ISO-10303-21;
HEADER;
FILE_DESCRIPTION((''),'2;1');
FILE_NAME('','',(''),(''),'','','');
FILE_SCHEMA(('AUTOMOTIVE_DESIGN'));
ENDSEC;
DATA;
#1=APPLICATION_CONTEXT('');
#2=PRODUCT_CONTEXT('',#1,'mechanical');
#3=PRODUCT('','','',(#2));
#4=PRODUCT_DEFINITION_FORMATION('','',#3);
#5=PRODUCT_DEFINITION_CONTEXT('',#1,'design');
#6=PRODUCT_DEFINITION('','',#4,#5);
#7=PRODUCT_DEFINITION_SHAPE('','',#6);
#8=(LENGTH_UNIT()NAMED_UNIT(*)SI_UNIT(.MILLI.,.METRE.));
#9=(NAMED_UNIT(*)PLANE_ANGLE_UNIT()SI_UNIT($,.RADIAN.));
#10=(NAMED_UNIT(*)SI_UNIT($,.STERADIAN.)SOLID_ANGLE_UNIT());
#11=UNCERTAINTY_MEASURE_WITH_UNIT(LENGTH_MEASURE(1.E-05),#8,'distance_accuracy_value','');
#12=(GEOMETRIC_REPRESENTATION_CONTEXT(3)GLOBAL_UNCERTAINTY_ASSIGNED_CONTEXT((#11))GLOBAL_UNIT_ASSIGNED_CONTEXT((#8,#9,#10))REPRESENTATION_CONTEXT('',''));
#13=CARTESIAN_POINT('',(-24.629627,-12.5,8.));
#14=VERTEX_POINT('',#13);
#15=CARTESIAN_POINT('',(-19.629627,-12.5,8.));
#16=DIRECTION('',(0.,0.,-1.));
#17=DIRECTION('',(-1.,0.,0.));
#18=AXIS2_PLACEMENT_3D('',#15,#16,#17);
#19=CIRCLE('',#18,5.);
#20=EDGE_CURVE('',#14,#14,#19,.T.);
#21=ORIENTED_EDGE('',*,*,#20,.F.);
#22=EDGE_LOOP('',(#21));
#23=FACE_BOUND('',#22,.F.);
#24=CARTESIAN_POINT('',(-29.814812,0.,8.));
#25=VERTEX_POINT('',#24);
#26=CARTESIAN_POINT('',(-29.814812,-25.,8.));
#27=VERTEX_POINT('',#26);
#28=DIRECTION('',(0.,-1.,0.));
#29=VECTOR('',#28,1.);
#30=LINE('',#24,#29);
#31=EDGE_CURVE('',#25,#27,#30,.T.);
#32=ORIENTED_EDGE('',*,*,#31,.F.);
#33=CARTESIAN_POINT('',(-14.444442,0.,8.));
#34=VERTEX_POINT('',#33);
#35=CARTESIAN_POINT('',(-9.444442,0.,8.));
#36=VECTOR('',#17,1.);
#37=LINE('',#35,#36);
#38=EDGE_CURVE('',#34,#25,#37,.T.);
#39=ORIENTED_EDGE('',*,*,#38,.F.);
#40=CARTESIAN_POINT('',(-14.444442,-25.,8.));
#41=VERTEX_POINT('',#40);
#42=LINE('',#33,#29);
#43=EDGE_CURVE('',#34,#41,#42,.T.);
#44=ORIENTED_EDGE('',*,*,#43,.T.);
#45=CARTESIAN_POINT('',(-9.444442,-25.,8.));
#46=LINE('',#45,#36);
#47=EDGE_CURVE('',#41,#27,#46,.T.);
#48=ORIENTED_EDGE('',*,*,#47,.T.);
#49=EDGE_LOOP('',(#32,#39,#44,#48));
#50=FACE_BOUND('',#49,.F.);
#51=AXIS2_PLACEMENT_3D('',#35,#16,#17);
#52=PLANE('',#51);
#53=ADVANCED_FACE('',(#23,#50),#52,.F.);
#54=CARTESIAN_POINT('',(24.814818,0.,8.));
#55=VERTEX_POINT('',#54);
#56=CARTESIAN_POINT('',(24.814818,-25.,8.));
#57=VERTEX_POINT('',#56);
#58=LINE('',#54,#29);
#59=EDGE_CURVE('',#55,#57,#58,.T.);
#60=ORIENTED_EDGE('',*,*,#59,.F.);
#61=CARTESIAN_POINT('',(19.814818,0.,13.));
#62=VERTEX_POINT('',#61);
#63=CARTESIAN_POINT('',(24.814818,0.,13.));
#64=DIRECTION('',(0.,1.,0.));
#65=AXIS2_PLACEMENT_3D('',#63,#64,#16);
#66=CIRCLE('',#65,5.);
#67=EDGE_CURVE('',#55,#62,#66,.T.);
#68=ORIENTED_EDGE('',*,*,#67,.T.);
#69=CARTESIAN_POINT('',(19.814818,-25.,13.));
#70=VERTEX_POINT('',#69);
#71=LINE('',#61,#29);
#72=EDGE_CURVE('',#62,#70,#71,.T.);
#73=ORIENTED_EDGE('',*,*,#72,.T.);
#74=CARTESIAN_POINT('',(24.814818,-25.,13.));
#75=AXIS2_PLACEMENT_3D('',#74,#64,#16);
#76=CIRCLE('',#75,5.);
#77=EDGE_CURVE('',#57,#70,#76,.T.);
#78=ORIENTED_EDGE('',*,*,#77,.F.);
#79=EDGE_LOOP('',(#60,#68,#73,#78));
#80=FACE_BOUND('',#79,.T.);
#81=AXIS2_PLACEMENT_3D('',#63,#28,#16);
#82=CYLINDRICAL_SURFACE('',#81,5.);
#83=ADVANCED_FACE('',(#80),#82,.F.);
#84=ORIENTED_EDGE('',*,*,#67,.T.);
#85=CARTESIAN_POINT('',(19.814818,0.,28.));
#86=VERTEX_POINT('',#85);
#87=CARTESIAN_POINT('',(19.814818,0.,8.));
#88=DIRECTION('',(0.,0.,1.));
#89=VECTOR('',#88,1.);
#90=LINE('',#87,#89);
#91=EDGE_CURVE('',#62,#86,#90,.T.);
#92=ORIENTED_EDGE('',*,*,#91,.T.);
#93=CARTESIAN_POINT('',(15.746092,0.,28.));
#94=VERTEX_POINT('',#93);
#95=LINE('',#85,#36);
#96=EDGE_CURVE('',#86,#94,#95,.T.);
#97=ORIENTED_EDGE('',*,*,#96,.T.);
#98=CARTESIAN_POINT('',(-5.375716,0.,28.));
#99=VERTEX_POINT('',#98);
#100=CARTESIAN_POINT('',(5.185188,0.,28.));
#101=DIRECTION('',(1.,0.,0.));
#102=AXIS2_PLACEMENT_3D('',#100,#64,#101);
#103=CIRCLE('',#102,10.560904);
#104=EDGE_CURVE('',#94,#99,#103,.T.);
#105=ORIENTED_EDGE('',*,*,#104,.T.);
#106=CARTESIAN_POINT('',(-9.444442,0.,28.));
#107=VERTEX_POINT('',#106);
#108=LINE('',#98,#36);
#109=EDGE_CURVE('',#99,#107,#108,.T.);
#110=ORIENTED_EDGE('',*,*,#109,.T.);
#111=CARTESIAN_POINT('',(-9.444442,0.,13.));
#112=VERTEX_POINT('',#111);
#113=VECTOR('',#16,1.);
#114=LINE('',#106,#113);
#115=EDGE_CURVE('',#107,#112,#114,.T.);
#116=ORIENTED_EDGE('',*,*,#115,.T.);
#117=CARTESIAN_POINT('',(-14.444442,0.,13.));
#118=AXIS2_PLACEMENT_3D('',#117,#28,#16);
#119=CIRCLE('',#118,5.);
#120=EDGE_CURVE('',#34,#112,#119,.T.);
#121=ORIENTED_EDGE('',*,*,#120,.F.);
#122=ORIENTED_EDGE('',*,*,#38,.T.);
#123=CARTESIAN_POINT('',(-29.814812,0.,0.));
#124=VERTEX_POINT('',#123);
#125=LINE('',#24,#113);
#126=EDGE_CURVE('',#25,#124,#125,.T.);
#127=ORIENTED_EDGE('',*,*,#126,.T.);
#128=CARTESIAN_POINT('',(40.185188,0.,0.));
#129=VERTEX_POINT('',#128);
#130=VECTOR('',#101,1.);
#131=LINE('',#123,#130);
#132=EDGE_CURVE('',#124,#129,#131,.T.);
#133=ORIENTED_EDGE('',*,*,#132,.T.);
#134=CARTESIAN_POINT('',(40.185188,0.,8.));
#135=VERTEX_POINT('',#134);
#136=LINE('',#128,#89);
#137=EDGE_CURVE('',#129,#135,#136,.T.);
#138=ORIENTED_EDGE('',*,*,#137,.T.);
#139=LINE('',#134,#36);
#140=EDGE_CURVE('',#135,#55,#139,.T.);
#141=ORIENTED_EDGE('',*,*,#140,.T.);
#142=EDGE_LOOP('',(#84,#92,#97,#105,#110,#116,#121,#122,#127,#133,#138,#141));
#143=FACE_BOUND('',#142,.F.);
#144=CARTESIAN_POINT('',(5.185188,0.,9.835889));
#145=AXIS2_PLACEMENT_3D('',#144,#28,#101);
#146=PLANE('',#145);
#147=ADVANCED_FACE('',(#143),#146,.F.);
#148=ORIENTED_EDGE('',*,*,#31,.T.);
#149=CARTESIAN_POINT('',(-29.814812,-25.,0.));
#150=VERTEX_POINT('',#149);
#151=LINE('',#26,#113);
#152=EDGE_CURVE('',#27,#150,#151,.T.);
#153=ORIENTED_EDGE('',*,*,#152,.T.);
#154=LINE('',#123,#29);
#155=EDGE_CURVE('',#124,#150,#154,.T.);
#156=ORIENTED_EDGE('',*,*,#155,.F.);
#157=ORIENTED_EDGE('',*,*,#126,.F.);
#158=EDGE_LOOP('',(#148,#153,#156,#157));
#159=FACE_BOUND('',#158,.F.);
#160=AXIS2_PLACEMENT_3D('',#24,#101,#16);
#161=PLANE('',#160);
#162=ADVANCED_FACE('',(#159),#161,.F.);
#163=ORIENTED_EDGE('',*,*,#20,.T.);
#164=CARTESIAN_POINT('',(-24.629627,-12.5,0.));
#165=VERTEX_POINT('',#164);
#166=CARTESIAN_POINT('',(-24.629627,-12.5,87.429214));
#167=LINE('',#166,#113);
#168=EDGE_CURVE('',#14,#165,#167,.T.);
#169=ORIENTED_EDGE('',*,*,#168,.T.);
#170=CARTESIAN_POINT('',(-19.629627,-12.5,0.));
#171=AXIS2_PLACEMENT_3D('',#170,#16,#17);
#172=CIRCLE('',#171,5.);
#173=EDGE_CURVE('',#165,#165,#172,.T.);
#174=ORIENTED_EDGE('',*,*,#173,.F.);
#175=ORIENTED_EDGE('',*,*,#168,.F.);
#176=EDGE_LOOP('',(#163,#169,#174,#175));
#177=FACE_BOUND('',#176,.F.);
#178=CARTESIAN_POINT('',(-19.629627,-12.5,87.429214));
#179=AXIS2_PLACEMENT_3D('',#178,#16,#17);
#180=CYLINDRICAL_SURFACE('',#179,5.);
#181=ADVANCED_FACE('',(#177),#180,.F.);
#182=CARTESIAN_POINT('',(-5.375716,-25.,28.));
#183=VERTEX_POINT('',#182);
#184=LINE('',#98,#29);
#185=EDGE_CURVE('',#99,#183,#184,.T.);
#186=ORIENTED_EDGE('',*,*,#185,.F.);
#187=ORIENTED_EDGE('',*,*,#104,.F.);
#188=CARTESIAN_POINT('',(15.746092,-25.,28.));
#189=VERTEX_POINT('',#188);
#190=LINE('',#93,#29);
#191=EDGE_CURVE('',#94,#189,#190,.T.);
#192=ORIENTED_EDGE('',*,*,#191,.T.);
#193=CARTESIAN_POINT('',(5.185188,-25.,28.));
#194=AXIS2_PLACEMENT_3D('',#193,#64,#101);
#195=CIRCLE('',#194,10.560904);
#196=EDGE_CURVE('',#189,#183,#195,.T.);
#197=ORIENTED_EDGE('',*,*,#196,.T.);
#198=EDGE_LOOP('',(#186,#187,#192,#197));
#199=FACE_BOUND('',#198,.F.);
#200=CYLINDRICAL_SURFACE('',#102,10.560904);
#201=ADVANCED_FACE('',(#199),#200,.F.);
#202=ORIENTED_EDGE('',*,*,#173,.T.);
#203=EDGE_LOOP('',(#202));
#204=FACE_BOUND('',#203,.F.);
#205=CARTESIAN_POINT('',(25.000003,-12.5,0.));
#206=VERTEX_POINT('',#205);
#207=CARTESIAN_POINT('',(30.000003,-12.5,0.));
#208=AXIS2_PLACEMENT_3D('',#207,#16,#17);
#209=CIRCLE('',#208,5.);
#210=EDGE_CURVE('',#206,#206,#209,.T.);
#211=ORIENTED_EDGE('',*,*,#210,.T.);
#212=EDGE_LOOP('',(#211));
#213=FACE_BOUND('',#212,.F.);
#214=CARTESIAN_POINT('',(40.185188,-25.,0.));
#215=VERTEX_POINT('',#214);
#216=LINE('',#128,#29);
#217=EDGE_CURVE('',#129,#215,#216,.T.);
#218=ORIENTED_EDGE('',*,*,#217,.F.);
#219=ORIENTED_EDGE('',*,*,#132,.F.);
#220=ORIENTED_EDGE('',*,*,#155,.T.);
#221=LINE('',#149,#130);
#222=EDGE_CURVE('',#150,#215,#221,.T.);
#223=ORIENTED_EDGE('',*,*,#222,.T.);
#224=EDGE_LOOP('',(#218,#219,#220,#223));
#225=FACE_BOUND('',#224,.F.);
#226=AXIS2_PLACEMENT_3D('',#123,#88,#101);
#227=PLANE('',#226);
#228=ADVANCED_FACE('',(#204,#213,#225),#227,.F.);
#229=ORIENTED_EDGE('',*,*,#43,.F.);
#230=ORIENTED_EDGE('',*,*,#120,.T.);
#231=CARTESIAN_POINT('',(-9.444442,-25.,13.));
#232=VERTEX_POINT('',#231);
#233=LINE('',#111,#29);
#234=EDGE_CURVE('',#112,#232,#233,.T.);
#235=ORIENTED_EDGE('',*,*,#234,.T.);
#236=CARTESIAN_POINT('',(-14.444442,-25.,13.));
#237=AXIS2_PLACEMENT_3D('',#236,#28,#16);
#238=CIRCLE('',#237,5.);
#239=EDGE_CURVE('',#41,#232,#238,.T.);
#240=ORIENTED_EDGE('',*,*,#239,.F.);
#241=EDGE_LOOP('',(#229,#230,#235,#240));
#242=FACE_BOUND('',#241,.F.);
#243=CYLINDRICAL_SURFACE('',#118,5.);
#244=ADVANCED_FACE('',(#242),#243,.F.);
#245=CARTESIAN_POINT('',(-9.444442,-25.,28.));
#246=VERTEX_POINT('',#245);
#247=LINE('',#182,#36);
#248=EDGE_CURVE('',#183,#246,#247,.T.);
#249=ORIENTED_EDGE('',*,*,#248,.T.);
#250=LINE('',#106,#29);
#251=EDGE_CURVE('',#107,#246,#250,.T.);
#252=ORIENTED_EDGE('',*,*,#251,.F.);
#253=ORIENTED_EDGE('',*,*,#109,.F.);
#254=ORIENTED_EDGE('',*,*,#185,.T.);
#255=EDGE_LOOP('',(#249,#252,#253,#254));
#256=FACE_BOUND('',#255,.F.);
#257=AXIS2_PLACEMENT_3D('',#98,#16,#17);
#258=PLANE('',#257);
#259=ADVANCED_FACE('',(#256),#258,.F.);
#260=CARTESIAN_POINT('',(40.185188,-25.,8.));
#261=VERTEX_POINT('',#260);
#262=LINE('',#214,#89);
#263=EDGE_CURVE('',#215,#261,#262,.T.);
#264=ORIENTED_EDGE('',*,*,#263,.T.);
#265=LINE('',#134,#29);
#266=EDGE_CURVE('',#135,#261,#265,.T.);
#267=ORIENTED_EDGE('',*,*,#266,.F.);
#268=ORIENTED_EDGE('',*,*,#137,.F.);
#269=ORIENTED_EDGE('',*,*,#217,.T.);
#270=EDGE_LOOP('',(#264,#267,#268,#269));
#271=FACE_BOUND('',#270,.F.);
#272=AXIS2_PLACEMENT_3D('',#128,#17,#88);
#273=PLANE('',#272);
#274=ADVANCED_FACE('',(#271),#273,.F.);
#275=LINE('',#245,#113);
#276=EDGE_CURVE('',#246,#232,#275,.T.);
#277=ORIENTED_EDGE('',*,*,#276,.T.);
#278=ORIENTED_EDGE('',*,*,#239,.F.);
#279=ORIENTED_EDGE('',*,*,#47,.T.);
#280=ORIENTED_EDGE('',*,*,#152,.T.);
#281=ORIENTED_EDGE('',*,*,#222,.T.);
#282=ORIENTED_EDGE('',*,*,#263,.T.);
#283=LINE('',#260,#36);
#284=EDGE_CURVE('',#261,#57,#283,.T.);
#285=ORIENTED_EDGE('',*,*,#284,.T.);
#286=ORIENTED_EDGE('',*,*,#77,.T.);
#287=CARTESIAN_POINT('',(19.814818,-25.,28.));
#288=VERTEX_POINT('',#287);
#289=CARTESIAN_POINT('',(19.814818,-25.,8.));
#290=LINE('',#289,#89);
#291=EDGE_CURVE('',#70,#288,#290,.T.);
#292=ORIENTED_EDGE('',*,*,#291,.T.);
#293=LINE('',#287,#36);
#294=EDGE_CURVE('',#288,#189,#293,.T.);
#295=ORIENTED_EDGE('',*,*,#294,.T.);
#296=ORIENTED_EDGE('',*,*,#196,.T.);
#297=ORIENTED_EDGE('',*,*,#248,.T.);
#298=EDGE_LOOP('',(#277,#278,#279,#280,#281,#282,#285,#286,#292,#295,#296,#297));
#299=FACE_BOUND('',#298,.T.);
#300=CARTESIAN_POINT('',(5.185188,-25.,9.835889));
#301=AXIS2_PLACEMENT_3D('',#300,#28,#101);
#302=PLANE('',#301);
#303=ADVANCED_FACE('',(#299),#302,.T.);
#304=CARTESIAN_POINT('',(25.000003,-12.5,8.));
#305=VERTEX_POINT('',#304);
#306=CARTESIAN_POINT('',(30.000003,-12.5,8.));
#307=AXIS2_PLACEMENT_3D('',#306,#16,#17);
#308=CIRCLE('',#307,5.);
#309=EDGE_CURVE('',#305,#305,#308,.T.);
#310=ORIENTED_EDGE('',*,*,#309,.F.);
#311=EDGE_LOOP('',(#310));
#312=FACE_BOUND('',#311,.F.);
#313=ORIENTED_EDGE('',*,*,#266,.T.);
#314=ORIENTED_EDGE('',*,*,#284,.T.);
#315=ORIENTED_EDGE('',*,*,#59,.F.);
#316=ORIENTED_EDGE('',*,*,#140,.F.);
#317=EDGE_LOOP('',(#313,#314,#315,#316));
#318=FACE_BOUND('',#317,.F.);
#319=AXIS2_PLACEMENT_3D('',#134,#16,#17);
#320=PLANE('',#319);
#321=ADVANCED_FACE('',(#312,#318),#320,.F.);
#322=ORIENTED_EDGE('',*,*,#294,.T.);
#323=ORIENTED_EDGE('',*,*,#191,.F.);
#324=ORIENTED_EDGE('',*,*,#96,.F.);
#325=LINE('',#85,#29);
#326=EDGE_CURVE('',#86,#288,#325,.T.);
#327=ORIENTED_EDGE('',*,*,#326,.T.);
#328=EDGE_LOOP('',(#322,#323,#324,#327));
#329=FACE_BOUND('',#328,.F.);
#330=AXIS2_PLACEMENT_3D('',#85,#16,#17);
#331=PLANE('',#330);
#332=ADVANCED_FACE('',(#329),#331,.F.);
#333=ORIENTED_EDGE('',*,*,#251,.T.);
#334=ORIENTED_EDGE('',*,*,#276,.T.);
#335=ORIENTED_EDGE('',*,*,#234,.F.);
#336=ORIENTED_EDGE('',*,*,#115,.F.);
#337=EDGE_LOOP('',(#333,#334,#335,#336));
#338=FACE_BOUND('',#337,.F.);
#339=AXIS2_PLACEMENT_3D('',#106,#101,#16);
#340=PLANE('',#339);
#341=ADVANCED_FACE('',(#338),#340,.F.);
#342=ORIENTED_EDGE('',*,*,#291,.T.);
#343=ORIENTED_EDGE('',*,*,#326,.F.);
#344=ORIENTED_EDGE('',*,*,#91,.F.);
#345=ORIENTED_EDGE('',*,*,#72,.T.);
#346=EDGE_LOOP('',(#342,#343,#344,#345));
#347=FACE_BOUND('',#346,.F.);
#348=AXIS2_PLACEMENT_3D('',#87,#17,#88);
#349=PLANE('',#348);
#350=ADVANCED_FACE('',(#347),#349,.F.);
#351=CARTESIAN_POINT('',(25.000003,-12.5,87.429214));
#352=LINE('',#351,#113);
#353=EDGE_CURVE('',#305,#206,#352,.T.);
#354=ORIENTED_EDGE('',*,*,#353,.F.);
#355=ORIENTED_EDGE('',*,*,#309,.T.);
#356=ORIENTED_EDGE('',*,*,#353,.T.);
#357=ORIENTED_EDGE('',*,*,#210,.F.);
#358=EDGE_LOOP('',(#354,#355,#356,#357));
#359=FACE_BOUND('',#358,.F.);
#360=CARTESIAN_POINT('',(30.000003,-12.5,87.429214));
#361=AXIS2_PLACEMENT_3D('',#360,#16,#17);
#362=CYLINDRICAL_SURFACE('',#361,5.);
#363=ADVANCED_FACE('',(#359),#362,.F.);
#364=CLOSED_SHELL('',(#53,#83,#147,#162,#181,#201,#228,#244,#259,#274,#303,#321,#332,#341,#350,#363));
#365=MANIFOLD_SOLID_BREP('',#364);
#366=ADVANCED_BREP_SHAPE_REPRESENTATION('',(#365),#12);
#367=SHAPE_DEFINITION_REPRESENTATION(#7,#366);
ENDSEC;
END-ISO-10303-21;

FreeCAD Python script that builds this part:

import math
import FreeCAD as App
import Part
import Sketcher
Q = App.Units.Quantity


def edges_at(feature, points):
    """Names of the edges that pass closest to the given points."""
    edges = feature.Shape.Edges
    near = lambda p: min(range(len(edges)), key=lambda i: edges[i].distToShape(Part.Vertex(*p))[0])
    return sorted({f"Edge{near(p) + 1}" for p in points})

doc = App.newDocument("Part")
body = doc.addObject("PartDesign::Body", "Body")

# Sketch on XZ plane
sketch1 = body.newObject("Sketcher::SketchObject", "Sketch")
sketch1.AttachmentSupport = (doc.getObject("XZ_Plane"), [""])
sketch1.MapMode = "FlatFace"
sketch1.addGeometry([
    Part.LineSegment(App.Vector(-29.814812, 8, 0), App.Vector(-29.814812, 0, 0)),  # 0
    Part.LineSegment(App.Vector(-29.814812, 0, 0), App.Vector(40.185188, 0, 0)),  # 1
    Part.LineSegment(App.Vector(40.185188, 0, 0), App.Vector(40.185188, 8, 0)),  # 2
    Part.LineSegment(App.Vector(40.185188, 8, 0), App.Vector(19.814818, 8, 0)),  # 3
    Part.LineSegment(App.Vector(19.814818, 8, 0), App.Vector(19.814818, 28, 0)),  # 4
    Part.LineSegment(App.Vector(19.814818, 28, 0), App.Vector(15.746092, 28, 0)),  # 5
    Part.ArcOfCircle(Part.Circle(App.Vector(5.185188, 28, 0), App.Vector(0, 0, 1), 10.560904), math.radians(180), math.radians(360)),  # 6
    Part.LineSegment(App.Vector(-5.375716, 28, 0), App.Vector(-9.444442, 28, 0)),  # 7
    Part.LineSegment(App.Vector(-9.444442, 28, 0), App.Vector(-9.444442, 8, 0)),  # 8
    Part.LineSegment(App.Vector(-9.444442, 8, 0), App.Vector(-29.814812, 8, 0)),  # 9
], False)
sketch1.addConstraint([
    Sketcher.Constraint("Coincident", 0, 2, 1, 1),
    Sketcher.Constraint("Coincident", 1, 2, 2, 1),
    Sketcher.Constraint("Coincident", 2, 2, 3, 1),
    Sketcher.Constraint("Coincident", 3, 2, 4, 1),
    Sketcher.Constraint("Coincident", 4, 2, 5, 1),
    Sketcher.Constraint("Coincident", 5, 2, 6, 2),
    Sketcher.Constraint("Coincident", 6, 1, 7, 1),
    Sketcher.Constraint("Coincident", 7, 2, 8, 1),
    Sketcher.Constraint("Coincident", 8, 2, 9, 1),
    Sketcher.Constraint("Coincident", 9, 2, 0, 1),
    Sketcher.Constraint("Vertical", 0),
    Sketcher.Constraint("Horizontal", 1),
    Sketcher.Constraint("Vertical", 2),
    Sketcher.Constraint("Horizontal", 3),
    Sketcher.Constraint("Vertical", 4),
    Sketcher.Constraint("Horizontal", 5),
    Sketcher.Constraint("Horizontal", 7),
    Sketcher.Constraint("Vertical", 8),
    Sketcher.Constraint("Horizontal", 9),
    Sketcher.Constraint("PointOnObject", 0, 2, -1),
    Sketcher.Constraint("Horizontal", 6, 3, 4, 2),
    Sketcher.Constraint("Horizontal", 5, 2, 6, 1),
    Sketcher.Constraint("Horizontal", 3, 2, 8, 2),
    Sketcher.Constraint("Equal", 5, 7),
    Sketcher.Constraint("Equal", 3, 9),
    Sketcher.Constraint("DistanceX", 1, 1, 1, 2, Q("70 mm")),
    Sketcher.Constraint("DistanceY", 0, 2, 0, 1, Q("8 mm")),
    Sketcher.Constraint("DistanceY", 4, 1, 4, 2, Q("20 mm")),
    Sketcher.Constraint("Radius", 6, Q("10.560904 mm")),
    Sketcher.Constraint("DistanceX", 3, 2, 3, 1, Q("20.37037 mm")),
    Sketcher.Constraint("DistanceX", 0, 2, -1, 1, Q("29.814812 mm")),
])
pad1 = body.newObject("PartDesign::Pad", "Pad")
pad1.Profile = sketch1
pad1.Length = 25

# Sketch on XY plane
sketch2 = body.newObject("Sketcher::SketchObject", "Sketch001")
sketch2.AttachmentSupport = (doc.getObject("XY_Plane"), [""])
sketch2.MapMode = "FlatFace"
sketch2.AttachmentOffset = App.Placement(App.Vector(0, 0, 8), App.Rotation())
sketch2.addGeometry(Part.Circle(App.Vector(-19.629627, -12.5, 0), App.Vector(0, 0, 1), 5), False)
sketch2.addConstraint([
    Sketcher.Constraint("Diameter", 0, Q("10 mm")),
    Sketcher.Constraint("DistanceY", 0, 3, -1, 1, Q("12.5 mm")),
    Sketcher.Constraint("DistanceX", 0, 3, -1, 1, Q("19.629627 mm")),
])
doc.recompute()
hole = body.newObject("PartDesign::Hole", "Hole")
hole.Profile = sketch2
hole.ThreadType = "None"
hole.Diameter = 10
hole.DepthType = "ThroughAll"

# Sketch on XY plane
sketch3 = body.newObject("Sketcher::SketchObject", "Sketch002")
sketch3.AttachmentSupport = (doc.getObject("XY_Plane"), [""])
sketch3.MapMode = "FlatFace"
sketch3.AttachmentOffset = App.Placement(App.Vector(0, 0, 8), App.Rotation())
sketch3.addGeometry(Part.Circle(App.Vector(30.000003, -12.5, 0), App.Vector(0, 0, 1), 5), False)
sketch3.addConstraint([
    Sketcher.Constraint("Diameter", 0, Q("10 mm")),
    Sketcher.Constraint("DistanceY", 0, 3, -1, 1, Q("12.5 mm")),
    Sketcher.Constraint("DistanceX", -1, 1, 0, 3, Q("30.000003 mm")),
])
doc.recompute()
hole2 = body.newObject("PartDesign::Hole", "Hole001")
hole2.Profile = sketch3
hole2.ThreadType = "None"
hole2.Diameter = 10
hole2.DepthType = "ThroughAll"
doc.recompute()

fillet = body.newObject("PartDesign::Fillet", "Fillet")
fillet.Base = (hole2, edges_at(hole2, [(-9.444, -12.5, 8), (19.815, -12.5, 8)]))
fillet.Radius = 5

doc.recompute()
